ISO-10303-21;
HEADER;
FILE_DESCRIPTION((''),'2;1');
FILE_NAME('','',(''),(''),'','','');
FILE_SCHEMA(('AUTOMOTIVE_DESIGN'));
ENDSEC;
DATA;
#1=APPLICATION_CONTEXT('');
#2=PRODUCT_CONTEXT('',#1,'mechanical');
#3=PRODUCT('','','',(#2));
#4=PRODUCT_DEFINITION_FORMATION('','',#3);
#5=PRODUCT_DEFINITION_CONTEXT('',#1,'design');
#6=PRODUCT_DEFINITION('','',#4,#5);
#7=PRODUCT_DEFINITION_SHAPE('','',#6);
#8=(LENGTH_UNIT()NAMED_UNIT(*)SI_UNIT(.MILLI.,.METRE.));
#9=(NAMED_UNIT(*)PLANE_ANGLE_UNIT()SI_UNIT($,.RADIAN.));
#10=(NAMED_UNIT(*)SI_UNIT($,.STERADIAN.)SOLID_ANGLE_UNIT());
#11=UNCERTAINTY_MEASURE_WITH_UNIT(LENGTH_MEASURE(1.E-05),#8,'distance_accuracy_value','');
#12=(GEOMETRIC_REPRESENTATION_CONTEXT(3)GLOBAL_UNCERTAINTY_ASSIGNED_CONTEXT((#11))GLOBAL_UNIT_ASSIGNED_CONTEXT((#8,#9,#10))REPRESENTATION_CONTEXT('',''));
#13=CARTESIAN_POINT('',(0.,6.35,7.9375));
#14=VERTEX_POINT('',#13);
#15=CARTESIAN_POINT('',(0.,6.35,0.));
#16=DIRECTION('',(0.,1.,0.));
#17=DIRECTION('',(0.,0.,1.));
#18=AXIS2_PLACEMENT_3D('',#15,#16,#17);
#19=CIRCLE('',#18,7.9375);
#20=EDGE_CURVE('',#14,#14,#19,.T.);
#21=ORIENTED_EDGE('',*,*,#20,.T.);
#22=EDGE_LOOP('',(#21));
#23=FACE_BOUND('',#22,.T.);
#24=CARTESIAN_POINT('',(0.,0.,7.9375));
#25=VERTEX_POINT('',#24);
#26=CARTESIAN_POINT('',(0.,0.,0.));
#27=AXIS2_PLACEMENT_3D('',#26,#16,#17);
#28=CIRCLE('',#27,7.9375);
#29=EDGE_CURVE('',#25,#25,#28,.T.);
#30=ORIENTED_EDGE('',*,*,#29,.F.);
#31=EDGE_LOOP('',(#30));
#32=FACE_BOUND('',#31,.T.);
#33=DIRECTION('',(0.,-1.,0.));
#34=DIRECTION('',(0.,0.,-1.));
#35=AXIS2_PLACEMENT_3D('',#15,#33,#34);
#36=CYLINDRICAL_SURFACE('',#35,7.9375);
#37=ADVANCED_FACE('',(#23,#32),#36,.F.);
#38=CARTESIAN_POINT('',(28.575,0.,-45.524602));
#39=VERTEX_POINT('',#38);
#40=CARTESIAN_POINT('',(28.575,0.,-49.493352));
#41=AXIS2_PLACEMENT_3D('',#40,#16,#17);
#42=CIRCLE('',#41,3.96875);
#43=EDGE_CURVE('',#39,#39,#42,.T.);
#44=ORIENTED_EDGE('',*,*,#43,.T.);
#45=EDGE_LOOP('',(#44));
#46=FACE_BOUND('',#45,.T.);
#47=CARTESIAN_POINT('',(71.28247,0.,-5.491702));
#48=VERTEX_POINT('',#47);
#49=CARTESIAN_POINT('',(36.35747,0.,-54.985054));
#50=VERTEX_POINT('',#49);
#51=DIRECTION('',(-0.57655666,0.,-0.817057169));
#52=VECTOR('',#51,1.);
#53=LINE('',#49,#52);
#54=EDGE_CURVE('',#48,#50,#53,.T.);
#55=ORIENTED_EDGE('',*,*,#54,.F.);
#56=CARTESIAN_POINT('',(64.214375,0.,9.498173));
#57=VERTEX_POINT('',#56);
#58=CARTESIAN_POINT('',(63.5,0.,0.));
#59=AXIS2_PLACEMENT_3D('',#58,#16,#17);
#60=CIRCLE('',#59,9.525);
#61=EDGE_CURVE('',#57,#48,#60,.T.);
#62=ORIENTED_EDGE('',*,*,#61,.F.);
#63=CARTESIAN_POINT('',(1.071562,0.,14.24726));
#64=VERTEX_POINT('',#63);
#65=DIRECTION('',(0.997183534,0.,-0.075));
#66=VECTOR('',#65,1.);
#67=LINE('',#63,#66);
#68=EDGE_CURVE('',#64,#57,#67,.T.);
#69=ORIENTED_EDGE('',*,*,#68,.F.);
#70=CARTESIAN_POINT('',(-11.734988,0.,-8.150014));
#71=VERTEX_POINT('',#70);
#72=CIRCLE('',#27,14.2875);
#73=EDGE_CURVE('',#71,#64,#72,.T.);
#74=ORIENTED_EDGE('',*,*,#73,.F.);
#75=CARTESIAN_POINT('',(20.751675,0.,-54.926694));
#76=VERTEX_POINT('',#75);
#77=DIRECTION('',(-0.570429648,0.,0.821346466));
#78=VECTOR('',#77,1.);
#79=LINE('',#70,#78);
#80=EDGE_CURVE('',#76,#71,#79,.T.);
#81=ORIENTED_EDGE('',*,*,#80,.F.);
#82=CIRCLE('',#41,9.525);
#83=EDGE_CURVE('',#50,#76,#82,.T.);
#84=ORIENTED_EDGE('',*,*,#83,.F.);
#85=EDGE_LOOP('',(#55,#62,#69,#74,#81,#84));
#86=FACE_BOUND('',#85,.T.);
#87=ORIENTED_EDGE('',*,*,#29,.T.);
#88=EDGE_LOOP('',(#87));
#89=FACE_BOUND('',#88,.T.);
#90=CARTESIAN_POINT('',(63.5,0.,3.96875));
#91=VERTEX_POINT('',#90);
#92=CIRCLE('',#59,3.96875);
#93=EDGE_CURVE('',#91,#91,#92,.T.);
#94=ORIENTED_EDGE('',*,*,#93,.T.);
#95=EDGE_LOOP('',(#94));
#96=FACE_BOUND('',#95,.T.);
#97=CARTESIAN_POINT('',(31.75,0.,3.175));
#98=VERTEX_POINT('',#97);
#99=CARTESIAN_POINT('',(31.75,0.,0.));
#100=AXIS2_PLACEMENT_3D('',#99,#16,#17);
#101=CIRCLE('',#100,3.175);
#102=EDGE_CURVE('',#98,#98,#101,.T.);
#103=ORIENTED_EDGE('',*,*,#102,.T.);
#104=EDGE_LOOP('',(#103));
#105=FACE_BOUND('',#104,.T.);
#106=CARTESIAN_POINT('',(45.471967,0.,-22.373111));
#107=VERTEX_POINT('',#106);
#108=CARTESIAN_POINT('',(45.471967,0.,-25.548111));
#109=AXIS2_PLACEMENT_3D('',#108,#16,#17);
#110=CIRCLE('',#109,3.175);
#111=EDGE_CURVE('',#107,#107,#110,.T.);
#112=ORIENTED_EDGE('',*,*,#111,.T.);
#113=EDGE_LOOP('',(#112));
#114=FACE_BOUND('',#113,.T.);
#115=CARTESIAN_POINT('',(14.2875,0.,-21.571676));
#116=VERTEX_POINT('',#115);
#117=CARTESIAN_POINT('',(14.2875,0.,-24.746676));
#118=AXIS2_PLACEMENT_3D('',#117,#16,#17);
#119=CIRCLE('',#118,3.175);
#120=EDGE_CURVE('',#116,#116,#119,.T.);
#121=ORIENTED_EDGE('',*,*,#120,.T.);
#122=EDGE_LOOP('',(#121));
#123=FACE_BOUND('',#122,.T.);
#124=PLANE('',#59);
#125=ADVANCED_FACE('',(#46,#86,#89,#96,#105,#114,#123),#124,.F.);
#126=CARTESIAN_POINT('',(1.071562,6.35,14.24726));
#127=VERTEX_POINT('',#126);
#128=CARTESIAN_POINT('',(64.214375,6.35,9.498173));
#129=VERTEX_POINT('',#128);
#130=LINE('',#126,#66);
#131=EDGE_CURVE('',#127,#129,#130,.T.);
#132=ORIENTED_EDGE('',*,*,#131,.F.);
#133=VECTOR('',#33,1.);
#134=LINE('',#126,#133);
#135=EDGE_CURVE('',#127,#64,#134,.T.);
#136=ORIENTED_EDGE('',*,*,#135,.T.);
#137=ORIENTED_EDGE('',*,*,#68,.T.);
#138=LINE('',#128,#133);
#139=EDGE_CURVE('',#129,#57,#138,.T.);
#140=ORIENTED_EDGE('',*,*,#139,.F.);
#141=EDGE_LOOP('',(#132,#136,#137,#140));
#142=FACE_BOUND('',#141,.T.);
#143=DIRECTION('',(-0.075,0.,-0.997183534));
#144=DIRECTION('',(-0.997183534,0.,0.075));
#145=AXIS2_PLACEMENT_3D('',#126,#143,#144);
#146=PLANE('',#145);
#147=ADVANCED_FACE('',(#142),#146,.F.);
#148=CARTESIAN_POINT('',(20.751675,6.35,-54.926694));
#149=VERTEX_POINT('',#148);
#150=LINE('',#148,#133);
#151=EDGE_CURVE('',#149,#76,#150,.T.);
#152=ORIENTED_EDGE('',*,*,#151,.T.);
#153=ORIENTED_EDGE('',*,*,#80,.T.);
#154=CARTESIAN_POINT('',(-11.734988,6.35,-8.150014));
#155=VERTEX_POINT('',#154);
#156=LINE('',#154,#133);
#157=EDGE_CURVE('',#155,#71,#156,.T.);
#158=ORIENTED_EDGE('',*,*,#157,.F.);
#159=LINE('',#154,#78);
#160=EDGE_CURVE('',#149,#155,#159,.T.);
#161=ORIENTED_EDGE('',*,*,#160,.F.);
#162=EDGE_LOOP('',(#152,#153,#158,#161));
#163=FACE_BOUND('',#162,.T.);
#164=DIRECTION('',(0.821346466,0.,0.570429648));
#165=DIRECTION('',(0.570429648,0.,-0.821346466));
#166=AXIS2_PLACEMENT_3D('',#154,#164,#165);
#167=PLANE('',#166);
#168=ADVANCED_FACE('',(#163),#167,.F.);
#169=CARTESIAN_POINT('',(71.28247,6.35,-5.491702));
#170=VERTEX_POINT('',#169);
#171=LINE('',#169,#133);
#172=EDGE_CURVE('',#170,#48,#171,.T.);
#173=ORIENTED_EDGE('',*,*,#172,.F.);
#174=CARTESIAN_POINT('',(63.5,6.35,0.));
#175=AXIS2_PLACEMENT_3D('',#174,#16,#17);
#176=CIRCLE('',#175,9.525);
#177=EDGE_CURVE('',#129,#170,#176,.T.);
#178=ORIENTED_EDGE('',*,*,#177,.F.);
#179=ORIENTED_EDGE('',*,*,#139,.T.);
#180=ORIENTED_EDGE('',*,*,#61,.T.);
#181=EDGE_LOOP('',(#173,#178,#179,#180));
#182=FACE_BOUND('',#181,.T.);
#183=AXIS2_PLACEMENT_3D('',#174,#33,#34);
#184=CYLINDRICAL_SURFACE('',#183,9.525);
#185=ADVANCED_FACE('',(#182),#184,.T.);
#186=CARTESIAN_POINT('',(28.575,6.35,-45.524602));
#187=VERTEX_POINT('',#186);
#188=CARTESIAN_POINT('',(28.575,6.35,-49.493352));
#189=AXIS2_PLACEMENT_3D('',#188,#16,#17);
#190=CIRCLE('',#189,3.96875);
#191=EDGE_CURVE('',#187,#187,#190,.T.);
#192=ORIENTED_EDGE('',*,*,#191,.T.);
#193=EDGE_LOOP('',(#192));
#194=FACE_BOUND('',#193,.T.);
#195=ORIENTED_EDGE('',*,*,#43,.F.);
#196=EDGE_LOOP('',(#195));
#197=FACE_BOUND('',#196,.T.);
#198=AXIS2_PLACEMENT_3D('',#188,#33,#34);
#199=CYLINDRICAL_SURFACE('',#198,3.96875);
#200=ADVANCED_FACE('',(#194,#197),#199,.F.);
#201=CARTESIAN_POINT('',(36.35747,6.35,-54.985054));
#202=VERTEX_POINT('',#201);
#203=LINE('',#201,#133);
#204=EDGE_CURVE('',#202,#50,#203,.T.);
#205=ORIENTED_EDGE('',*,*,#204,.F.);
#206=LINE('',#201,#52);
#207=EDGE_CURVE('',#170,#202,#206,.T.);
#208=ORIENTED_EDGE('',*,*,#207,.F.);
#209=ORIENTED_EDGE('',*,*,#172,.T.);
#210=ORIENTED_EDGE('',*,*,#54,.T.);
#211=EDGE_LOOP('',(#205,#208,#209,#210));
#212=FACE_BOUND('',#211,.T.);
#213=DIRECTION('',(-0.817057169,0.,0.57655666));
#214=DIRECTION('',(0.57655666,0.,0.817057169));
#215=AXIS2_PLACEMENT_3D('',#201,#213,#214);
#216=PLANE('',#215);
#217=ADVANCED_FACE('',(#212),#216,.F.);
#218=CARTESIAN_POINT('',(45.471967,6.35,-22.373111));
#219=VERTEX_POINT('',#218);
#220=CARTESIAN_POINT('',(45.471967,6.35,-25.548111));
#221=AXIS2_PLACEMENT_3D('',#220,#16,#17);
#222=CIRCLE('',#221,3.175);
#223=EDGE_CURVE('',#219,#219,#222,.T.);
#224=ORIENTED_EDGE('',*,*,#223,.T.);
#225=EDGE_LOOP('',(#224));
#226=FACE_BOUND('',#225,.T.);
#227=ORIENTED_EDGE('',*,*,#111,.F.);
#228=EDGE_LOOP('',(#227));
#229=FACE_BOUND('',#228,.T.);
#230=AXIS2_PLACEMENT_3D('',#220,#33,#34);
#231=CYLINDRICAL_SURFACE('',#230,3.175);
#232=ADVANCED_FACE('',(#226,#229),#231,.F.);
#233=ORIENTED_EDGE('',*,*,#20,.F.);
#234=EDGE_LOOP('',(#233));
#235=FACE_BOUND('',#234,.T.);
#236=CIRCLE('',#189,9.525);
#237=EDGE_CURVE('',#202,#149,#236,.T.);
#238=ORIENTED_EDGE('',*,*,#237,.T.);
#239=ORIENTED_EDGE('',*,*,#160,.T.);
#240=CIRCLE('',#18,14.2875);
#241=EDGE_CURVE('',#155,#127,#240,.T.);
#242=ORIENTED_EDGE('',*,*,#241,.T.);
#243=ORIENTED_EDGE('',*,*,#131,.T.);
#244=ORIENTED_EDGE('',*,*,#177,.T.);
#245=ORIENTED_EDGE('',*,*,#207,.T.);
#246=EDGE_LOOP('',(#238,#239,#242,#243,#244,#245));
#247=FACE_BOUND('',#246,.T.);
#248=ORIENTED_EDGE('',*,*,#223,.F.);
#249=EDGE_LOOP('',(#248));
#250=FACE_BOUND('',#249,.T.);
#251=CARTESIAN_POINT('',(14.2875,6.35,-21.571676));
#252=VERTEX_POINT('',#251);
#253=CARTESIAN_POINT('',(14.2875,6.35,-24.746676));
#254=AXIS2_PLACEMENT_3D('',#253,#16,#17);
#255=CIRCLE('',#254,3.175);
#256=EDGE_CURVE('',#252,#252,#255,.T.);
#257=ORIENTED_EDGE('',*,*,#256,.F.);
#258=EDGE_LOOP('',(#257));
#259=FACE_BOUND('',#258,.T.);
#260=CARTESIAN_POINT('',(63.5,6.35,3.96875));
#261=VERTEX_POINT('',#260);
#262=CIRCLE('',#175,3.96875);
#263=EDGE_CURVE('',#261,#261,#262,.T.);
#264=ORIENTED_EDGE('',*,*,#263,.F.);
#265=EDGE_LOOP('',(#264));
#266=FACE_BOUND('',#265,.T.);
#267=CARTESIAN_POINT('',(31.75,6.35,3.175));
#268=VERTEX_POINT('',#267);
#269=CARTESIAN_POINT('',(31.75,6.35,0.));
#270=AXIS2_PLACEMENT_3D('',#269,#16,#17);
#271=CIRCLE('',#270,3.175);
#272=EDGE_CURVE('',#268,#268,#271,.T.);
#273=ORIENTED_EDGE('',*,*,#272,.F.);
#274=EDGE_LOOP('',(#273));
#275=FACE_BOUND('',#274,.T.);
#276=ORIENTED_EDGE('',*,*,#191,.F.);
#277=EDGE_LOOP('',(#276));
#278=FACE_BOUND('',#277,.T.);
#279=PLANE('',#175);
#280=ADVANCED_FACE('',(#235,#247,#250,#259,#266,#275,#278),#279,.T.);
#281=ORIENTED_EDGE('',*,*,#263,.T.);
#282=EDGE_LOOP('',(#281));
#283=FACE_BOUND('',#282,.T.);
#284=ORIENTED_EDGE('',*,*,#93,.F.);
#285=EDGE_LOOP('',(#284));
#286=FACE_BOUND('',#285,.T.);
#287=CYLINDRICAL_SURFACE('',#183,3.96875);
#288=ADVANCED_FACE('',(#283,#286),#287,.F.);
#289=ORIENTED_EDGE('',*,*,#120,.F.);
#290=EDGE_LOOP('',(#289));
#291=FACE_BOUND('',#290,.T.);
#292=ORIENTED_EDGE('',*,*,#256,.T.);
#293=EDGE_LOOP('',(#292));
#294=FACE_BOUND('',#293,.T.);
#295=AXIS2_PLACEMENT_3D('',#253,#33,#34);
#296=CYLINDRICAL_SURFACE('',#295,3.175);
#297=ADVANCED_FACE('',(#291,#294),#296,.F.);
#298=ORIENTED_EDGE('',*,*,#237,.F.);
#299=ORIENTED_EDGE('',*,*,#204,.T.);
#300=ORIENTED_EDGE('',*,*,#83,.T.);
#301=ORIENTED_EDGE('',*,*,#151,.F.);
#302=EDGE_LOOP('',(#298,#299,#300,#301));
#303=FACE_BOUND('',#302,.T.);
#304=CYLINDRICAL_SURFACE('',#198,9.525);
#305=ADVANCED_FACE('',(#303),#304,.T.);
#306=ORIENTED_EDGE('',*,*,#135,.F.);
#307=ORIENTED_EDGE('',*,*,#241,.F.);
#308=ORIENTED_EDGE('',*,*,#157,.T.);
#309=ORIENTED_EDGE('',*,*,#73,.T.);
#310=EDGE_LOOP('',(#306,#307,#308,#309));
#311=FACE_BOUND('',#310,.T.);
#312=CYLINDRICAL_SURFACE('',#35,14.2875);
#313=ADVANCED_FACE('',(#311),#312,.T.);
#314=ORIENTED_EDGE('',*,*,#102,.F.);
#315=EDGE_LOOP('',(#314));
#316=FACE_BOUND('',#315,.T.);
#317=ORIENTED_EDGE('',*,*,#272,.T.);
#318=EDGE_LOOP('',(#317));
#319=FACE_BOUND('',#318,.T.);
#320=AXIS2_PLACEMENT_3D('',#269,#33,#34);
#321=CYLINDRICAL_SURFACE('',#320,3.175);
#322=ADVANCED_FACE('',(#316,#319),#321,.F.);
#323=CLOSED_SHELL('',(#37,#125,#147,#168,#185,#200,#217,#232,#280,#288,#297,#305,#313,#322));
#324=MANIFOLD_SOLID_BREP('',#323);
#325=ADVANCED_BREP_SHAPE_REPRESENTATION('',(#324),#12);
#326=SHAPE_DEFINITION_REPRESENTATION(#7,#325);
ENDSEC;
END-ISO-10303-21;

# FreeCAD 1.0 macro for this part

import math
import FreeCAD as App
import Part
import Sketcher

V = App.Vector
Q = App.Units.Quantity

doc = App.newDocument("Part")
params = doc.addObject("Spreadsheet::Sheet", "Params")
for row, (alias, value) in enumerate([
    ("sketch1_diameter", "0.25 in"),
    ("sketch1_diameter2", "0.625 in"),
    ("sketch1_diameter3", "0.3125 in"),
    ("sketch1_radius", "0.375 in"),
    ("sketch1_radius2", "0.5625 in"),
    ("pad1_length", "0.25 in"),
], start=1):
    params.set(f"A{row}", alias)
    params.set(f"B{row}", "=" + value)
    params.setAlias(f"B{row}", alias)

body = doc.addObject("PartDesign::Body", "Body")

sketch1 = body.newObject("Sketcher::SketchObject", "Sketch")
sketch1.AttachmentSupport = (doc.getObject("XZ_Plane"), [""])
sketch1.MapMode = "FlatFace"
sketch1.addGeometry([
    Part.LineSegment(V(1.1, 14.2, 0), V(64.2, 9.5, 0)),
    Part.ArcOfCircle(Part.Circle(V(63.5, 0, 0), V(0, 0, 1), 9.5), math.radians(-35), math.radians(86)),
    Part.LineSegment(V(71.3, -5.5, 0), V(36.4, -55, 0)),
    Part.ArcOfCircle(Part.Circle(V(28.6, -49.5, 0), V(0, 0, 1), 9.5), math.radians(-145), math.radians(-35)),
    Part.LineSegment(V(20.8, -54.9, 0), V(-11.7, -8.2, 0)),
    Part.ArcOfCircle(Part.Circle(V(0, 0, 0), V(0, 0, 1), 14.3), math.radians(86), math.radians(215)),
    Part.Circle(V(0, 0, 0), V(0, 0, 1), 7.9),
    Part.Circle(V(31.8, 0, 0), V(0, 0, 1), 3.2),
    Part.Circle(V(63.5, 0, 0), V(0, 0, 1), 4),
    Part.Circle(V(14.3, -24.7, 0), V(0, 0, 1), 3.2),
    Part.Circle(V(28.6, -49.5, 0), V(0, 0, 1), 4),
    Part.Circle(V(45.5, -25.5, 0), V(0, 0, 1), 3.2),
], False)
sketch1.addConstraint([
    Sketcher.Constraint("Tangent", 0, 2, 1, 2),
    Sketcher.Constraint("Tangent", 1, 1, 2, 1),
    Sketcher.Constraint("Tangent", 2, 2, 3, 2),
    Sketcher.Constraint("Tangent", 3, 1, 4, 1),
    Sketcher.Constraint("Tangent", 4, 2, 5, 2),
    Sketcher.Constraint("Tangent", 5, 1, 0, 1),
    Sketcher.Constraint("Coincident", 5, 3, -1, 1),
    Sketcher.Constraint("Coincident", 6, 3, -1, 1),
    Sketcher.Constraint("Coincident", 8, 3, 1, 3),
    Sketcher.Constraint("Coincident", 10, 3, 3, 3),
    Sketcher.Constraint("Equal", 1, 3),
    Sketcher.Constraint("Equal", 7, 9),
    Sketcher.Constraint("Equal", 8, 10),
    Sketcher.Constraint("Equal", 9, 11),
    Sketcher.Constraint("PointOnObject", 1, 3, -1),
    Sketcher.Constraint("PointOnObject", 7, 3, -1),
    Sketcher.Constraint("Diameter", 7, Q("0.25 in")),
    Sketcher.Constraint("Diameter", 6, Q("0.625 in")),
    Sketcher.Constraint("Diameter", 8, Q("0.3125 in")),
    Sketcher.Constraint("Radius", 1, Q("0.375 in")),
    Sketcher.Constraint("Radius", 5, Q("0.5625 in")),
    Sketcher.Constraint("DistanceX", -1, 1, 1, 3, Q("2.5 in")),
    Sketcher.Constraint("DistanceX", -1, 1, 7, 3, Q("1.25 in")),
    Sketcher.Constraint("DistanceX", -1, 1, 3, 3, Q("1.125 in")),
    Sketcher.Constraint("DistanceX", -1, 1, 9, 3, Q("0.5625 in")),
    Sketcher.Constraint("Distance", 2, 60.575139),
    Sketcher.Constraint("DistanceY", 11, 3, -1, 1, 25.548111),
    Sketcher.Constraint("DistanceY", 9, 3, 0, 2, 34.244849),
    Sketcher.Constraint("DistanceX", -1, 1, 11, 3, 45.471967),
])
sketch1.setExpression("Constraints[16]", "Params.sketch1_diameter")
sketch1.setExpression("Constraints[17]", "Params.sketch1_diameter2")
sketch1.setExpression("Constraints[18]", "Params.sketch1_diameter3")
sketch1.setExpression("Constraints[19]", "Params.sketch1_radius")
sketch1.setExpression("Constraints[20]", "Params.sketch1_radius2")
pad1 = body.newObject("PartDesign::Pad", "Pad")
pad1.Profile = sketch1
pad1.setExpression("Length", "Params.pad1_length")
pad1.Reversed = True

doc.recompute()
